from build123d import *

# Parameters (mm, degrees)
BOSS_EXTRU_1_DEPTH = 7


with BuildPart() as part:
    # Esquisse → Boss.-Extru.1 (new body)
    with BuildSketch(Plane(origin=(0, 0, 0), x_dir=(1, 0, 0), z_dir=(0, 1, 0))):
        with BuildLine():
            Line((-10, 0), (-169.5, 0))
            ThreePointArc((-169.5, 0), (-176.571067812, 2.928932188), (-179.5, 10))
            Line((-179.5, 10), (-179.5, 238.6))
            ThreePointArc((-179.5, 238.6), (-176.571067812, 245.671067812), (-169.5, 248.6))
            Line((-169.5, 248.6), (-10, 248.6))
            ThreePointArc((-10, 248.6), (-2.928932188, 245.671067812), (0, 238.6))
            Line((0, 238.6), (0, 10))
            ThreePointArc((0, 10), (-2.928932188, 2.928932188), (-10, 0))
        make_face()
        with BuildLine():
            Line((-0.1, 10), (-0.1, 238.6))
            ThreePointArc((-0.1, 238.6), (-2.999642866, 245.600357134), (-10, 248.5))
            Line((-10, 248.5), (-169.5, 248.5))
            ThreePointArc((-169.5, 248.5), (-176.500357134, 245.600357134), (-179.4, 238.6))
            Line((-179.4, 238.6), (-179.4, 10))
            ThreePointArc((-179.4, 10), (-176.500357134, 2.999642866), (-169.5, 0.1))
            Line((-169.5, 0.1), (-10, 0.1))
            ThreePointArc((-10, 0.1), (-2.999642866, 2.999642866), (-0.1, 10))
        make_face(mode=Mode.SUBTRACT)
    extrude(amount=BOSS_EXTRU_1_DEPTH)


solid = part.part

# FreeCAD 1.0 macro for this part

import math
import FreeCAD as App
import Part
import Sketcher

doc = App.newDocument("Part")
body = doc.addObject("PartDesign::Body", "Body")

sketch1 = body.newObject("Sketcher::SketchObject", "Sketch")
sketch1.AttachmentSupport = (doc.getObject("XZ_Plane"), [""])
sketch1.MapMode = "FlatFace"
sketch1.addGeometry([
    Part.LineSegment(App.Vector(-169.5, 0, 0), App.Vector(-10, 0, 0)),
    Part.ArcOfCircle(Part.Circle(App.Vector(-10, -10, 0), App.Vector(0, 0, 1), 10), math.radians(0), math.radians(90)),
    Part.LineSegment(App.Vector(0, -10, 0), App.Vector(0, -238.6, 0)),
    Part.ArcOfCircle(Part.Circle(App.Vector(-10, -238.6, 0), App.Vector(0, 0, 1), 10), math.radians(-90), math.radians(0)),
    Part.LineSegment(App.Vector(-10, -248.6, 0), App.Vector(-169.5, -248.6, 0)),
    Part.ArcOfCircle(Part.Circle(App.Vector(-169.5, -238.6, 0), App.Vector(0, 0, 1), 10), math.radians(180), math.radians(270)),
    Part.LineSegment(App.Vector(-179.5, -238.6, 0), App.Vector(-179.5, -10, 0)),
    Part.ArcOfCircle(Part.Circle(App.Vector(-169.5, -10, 0), App.Vector(0, 0, 1), 10), math.radians(90), math.radians(180)),
    Part.ArcOfCircle(Part.Circle(App.Vector(-10, -10, 0), App.Vector(0, 0, 1), 9.9), math.radians(0), math.radians(90)),
    Part.LineSegment(App.Vector(-10, -0.1, 0), App.Vector(-169.5, -0.1, 0)),
    Part.ArcOfCircle(Part.Circle(App.Vector(-169.5, -10, 0), App.Vector(0, 0, 1), 9.9), math.radians(90), math.radians(180)),
    Part.LineSegment(App.Vector(-179.4, -10, 0), App.Vector(-179.4, -238.6, 0)),
    Part.ArcOfCircle(Part.Circle(App.Vector(-169.5, -238.6, 0), App.Vector(0, 0, 1), 9.9), math.radians(180), math.radians(270)),
    Part.LineSegment(App.Vector(-169.5, -248.5, 0), App.Vector(-10, -248.5, 0)),
    Part.ArcOfCircle(Part.Circle(App.Vector(-10, -238.6, 0), App.Vector(0, 0, 1), 9.9), math.radians(-90), math.radians(0)),
    Part.LineSegment(App.Vector(-0.1, -238.6, 0), App.Vector(-0.1, -10, 0)),
], False)
sketch1.addConstraint([
    Sketcher.Constraint("Tangent", 0, 2, 1, 2),
    Sketcher.Constraint("Tangent", 1, 1, 2, 1),
    Sketcher.Constraint("Tangent", 2, 2, 3, 2),
    Sketcher.Constraint("Tangent", 3, 1, 4, 1),
    Sketcher.Constraint("Tangent", 4, 2, 5, 2),
    Sketcher.Constraint("Tangent", 5, 1, 6, 1),
    Sketcher.Constraint("Tangent", 6, 2, 7, 2),
    Sketcher.Constraint("Tangent", 7, 1, 0, 1),
    Sketcher.Constraint("Tangent", 8, 2, 9, 1),
    Sketcher.Constraint("Tangent", 9, 2, 10, 1),
    Sketcher.Constraint("Tangent", 10, 2, 11, 1),
    Sketcher.Constraint("Tangent", 11, 2, 12, 1),
    Sketcher.Constraint("Tangent", 12, 2, 13, 1),
    Sketcher.Constraint("Tangent", 13, 2, 14, 1),
    Sketcher.Constraint("Tangent", 14, 2, 15, 1),
    Sketcher.Constraint("Tangent", 15, 2, 8, 1),
    Sketcher.Constraint("Horizontal", 0),
    Sketcher.Constraint("Vertical", 2),
    Sketcher.Constraint("Horizontal", 4),
    Sketcher.Constraint("Vertical", 6),
    Sketcher.Constraint("Horizontal", 9),
    Sketcher.Constraint("Vertical", 11),
    Sketcher.Constraint("Horizontal", 13),
    Sketcher.Constraint("Vertical", 15),
    Sketcher.Constraint("Coincident", 8, 3, 1, 3),
    Sketcher.Constraint("Coincident", 10, 3, 7, 3),
    Sketcher.Constraint("Coincident", 12, 3, 5, 3),
    Sketcher.Constraint("Equal", 1, 3),
    Sketcher.Constraint("Equal", 3, 5),
    Sketcher.Constraint("Equal", 5, 7),
    Sketcher.Constraint("Equal", 12, 14),
    Sketcher.Constraint("PointOnObject", 0, 2, -1),
    Sketcher.Constraint("PointOnObject", 1, 1, -2),
    Sketcher.Constraint("Radius", 1, 10.0),
    Sketcher.Constraint("Radius", 8, 9.9),
    Sketcher.Constraint("DistanceX", 0, 1, 0, 2, 159.5),
    Sketcher.Constraint("DistanceY", 2, 2, 2, 1, 228.6),
])
pad1 = body.newObject("PartDesign::Pad", "Pad")
pad1.Profile = sketch1
pad1.Length = 7
pad1.Reversed = True

doc.recompute()
